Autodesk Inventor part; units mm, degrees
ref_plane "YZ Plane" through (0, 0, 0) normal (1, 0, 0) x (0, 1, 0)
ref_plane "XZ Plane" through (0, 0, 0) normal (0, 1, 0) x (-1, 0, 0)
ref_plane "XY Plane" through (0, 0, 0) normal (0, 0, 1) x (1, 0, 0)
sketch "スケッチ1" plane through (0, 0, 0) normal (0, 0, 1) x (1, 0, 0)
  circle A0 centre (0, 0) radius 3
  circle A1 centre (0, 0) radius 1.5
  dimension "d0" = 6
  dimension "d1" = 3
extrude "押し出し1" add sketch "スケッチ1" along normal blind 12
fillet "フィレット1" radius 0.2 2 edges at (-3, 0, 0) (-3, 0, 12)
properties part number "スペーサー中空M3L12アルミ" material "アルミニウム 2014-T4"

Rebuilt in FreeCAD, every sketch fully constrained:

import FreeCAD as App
import Part
import Sketcher

V = App.Vector


def edges_at(feature, points):
    """Names of the edges that pass closest to the given points."""
    edges = feature.Shape.Edges
    near = lambda p: min(range(len(edges)), key=lambda i: edges[i].distToShape(Part.Vertex(*p))[0])
    return sorted({f"Edge{near(p) + 1}" for p in points})

doc = App.newDocument("Part")
body = doc.addObject("PartDesign::Body", "Body")

sketch1 = body.newObject("Sketcher::SketchObject", "Sketch")
sketch1.AttachmentSupport = (doc.getObject("XY_Plane"), [""])
sketch1.MapMode = "FlatFace"
sketch1.addGeometry([
    Part.Circle(V(0, 0, 0), V(0, 0, 1), 3),
    Part.Circle(V(0, 0, 0), V(0, 0, 1), 1.5),
], False)
sketch1.addConstraint([
    Sketcher.Constraint("Coincident", 0, 3, -1, 1),
    Sketcher.Constraint("Coincident", 1, 3, -1, 1),
    Sketcher.Constraint("Diameter", 0, 6.0),
    Sketcher.Constraint("Diameter", 1, 3.0),
])
pad1 = body.newObject("PartDesign::Pad", "Pad")
pad1.Profile = sketch1
pad1.Length = 12
doc.recompute()

fillet = body.newObject("PartDesign::Fillet", "Fillet")
fillet.Base = (pad1, edges_at(pad1, [(-3, 0, 0), (-3, 0, 12)]))
fillet.Radius = 0.2

doc.recompute()
